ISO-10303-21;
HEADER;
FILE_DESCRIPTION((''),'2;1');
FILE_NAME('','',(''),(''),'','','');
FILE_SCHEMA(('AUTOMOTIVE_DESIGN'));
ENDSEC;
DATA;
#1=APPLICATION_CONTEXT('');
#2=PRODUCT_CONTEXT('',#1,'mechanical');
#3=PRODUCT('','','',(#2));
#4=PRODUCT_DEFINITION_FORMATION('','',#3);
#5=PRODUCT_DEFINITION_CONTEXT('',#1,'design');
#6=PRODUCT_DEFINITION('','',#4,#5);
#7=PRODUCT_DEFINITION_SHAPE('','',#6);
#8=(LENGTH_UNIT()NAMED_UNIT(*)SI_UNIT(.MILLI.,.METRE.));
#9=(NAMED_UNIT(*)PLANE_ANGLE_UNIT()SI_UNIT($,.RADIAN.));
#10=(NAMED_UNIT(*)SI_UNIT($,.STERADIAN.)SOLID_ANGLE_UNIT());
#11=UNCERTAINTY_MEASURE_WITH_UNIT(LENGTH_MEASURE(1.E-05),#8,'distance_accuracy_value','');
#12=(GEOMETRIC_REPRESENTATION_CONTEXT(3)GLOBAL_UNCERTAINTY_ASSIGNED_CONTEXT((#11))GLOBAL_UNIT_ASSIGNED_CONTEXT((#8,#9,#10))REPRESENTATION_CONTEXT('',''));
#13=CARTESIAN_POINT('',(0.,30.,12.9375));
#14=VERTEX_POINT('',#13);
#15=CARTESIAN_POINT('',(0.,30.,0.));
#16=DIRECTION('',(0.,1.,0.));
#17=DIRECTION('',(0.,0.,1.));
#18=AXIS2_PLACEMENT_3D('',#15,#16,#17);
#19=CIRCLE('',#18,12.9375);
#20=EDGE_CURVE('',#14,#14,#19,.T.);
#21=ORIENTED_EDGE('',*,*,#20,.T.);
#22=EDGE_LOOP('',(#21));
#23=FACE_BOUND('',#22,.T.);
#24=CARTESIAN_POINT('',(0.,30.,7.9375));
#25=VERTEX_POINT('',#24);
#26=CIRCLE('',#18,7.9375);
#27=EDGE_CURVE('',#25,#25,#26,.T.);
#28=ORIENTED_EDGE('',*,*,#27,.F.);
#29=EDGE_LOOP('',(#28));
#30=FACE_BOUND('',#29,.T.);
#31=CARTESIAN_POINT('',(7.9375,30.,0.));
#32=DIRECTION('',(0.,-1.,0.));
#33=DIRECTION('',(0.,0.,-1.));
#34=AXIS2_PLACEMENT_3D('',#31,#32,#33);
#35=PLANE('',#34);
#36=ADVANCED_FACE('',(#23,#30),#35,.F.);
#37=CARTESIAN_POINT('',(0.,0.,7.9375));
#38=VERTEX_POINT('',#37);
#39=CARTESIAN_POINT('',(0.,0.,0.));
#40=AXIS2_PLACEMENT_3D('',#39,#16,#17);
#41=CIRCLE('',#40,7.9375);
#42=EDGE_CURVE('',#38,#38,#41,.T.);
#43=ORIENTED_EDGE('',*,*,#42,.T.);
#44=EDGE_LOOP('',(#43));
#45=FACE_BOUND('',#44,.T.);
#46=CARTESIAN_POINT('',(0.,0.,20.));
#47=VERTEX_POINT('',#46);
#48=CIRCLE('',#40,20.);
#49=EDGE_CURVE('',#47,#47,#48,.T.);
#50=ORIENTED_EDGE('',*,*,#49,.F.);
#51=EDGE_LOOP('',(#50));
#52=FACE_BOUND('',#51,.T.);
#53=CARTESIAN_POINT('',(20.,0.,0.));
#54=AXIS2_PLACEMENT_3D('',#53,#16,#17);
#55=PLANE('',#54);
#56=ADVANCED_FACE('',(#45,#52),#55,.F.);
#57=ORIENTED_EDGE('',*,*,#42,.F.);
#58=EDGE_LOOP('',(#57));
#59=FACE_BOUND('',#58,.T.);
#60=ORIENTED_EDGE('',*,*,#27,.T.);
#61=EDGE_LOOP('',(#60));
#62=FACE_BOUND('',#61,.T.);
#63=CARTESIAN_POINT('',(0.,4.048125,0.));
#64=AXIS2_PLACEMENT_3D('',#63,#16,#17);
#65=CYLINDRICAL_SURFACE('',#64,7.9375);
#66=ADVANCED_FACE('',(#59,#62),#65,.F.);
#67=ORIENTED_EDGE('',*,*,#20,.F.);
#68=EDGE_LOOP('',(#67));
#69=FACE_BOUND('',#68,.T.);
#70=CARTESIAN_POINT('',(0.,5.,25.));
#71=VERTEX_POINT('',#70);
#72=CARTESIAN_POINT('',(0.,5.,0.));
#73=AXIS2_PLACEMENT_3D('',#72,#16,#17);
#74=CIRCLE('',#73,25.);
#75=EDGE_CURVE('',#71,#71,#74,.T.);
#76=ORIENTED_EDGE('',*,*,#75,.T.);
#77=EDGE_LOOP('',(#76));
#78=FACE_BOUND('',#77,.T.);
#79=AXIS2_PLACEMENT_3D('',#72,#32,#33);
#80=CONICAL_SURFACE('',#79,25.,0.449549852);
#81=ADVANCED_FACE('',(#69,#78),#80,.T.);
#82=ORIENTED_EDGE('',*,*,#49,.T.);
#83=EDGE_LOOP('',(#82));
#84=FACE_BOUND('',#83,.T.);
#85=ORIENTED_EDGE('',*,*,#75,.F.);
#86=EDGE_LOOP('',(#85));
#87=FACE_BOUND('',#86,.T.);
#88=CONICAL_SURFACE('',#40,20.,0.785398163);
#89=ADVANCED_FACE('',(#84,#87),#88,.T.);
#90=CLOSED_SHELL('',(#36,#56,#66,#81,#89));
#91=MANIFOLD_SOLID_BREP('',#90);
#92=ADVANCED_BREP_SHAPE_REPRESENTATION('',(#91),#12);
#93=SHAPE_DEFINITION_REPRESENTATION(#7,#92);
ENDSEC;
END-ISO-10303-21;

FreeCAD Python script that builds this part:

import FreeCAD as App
import Part
import Sketcher
Q = App.Units.Quantity

doc = App.newDocument("Part")
body = doc.addObject("PartDesign::Body", "Body")

sketch1 = doc.addObject("Sketcher::SketchObject", "Sketch")
body.addObject(sketch1)
sketch1.AttachmentSupport = (doc.XY_Plane, [""])
sketch1.MapMode = "FlatFace"
sketch1.addGeometry([
    Part.LineSegment(App.Vector(8, 30, 0), App.Vector(8, 0, 0)),
    Part.LineSegment(App.Vector(8, 0, 0), App.Vector(20, 0, 0)),
    Part.LineSegment(App.Vector(20, 0, 0), App.Vector(25, 5, 0)),
    Part.LineSegment(App.Vector(25, 5, 0), App.Vector(13, 30, 0)),
    Part.LineSegment(App.Vector(13, 30, 0), App.Vector(8, 30, 0)),
], False)
sketch1.addConstraint([
    Sketcher.Constraint("Coincident", 0, 2, 1, 1),
    Sketcher.Constraint("Coincident", 1, 2, 2, 1),
    Sketcher.Constraint("Coincident", 2, 2, 3, 1),
    Sketcher.Constraint("Coincident", 3, 2, 4, 1),
    Sketcher.Constraint("Coincident", 4, 2, 0, 1),
    Sketcher.Constraint("Vertical", 0),
    Sketcher.Constraint("Horizontal", 1),
    Sketcher.Constraint("Horizontal", 4),
    Sketcher.Constraint("PointOnObject", 0, 2, -1),
    Sketcher.Constraint("DistanceX", 4, 2, 4, 1, Q("5 mm")),
    Sketcher.Constraint("DistanceY", 0, 2, 0, 1, Q("30 mm")),
    Sketcher.Constraint("Angle", 2, Q("45 deg")),
    Sketcher.Constraint("DistanceX", -1, 1, 1, 2, Q("20 mm")),
    Sketcher.Constraint("DistanceX", -1, 1, 2, 2, Q("25 mm")),
    Sketcher.Constraint("DistanceX", 1, 1, 1, 2, Q("12.0625 mm")),
])
revolution = doc.addObject("PartDesign::Revolution", "Revolution")
body.addObject(revolution)
revolution.Profile = sketch1
revolution.ReferenceAxis = (sketch1, ["V_Axis"])
revolution.Angle = 360

doc.recompute()
